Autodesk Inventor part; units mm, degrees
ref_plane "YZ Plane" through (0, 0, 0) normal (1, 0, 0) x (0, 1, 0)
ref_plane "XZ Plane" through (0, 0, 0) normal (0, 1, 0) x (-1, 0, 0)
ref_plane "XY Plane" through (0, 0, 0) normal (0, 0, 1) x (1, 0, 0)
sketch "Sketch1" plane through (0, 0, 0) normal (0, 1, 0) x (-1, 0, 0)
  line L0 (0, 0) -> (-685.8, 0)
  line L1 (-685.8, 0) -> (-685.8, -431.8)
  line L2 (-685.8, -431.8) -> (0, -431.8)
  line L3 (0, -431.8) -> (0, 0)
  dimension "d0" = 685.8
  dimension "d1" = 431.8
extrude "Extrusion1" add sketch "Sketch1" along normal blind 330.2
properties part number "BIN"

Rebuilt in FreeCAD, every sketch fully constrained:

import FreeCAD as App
import Part
import Sketcher

V = App.Vector
Q = App.Units.Quantity


def add_polygon(sketch, points):
    """Adds a closed chain of lines whose ends are joined by coincident constraints."""
    first, n = sketch.GeometryCount, len(points)
    for a, b in zip(points, points[1:] + points[:1]):
        sketch.addGeometry(Part.LineSegment(App.Vector(*a, 0), App.Vector(*b, 0)), False)
    for i in range(n):
        sketch.addConstraint(Sketcher.Constraint("Coincident", first + i, 2, first + (i + 1) % n, 1))

doc = App.newDocument("Part")
body = doc.addObject("PartDesign::Body", "Body")

# Sketch on XZ plane
sketch1 = doc.addObject("Sketcher::SketchObject", "Sketch")
body.addObject(sketch1)
sketch1.AttachmentSupport = (doc.XZ_Plane, [""])
sketch1.MapMode = "FlatFace"
add_polygon(sketch1, [(0, -431.8), (0, 0), (685.8, 0), (685.8, -431.8)])  # lines 0-3
sketch1.addConstraint(Sketcher.Constraint("Vertical", 0))
sketch1.addConstraint(Sketcher.Constraint("Horizontal", 1))
sketch1.addConstraint(Sketcher.Constraint("Vertical", 2))
sketch1.addConstraint(Sketcher.Constraint("Horizontal", 3))
sketch1.addConstraint(Sketcher.Constraint("Coincident", 0, 2, -1, 1))
sketch1.addConstraint(Sketcher.Constraint("DistanceX", 1, 1, 1, 2, Q("27 in")))
sketch1.addConstraint(Sketcher.Constraint("DistanceY", 0, 1, 0, 2, Q("17 in")))
pad1 = doc.addObject("PartDesign::Pad", "Pad")
body.addObject(pad1)
pad1.Profile = sketch1
pad1.Length = Q("13 in")
pad1.Reversed = True

doc.recompute()
